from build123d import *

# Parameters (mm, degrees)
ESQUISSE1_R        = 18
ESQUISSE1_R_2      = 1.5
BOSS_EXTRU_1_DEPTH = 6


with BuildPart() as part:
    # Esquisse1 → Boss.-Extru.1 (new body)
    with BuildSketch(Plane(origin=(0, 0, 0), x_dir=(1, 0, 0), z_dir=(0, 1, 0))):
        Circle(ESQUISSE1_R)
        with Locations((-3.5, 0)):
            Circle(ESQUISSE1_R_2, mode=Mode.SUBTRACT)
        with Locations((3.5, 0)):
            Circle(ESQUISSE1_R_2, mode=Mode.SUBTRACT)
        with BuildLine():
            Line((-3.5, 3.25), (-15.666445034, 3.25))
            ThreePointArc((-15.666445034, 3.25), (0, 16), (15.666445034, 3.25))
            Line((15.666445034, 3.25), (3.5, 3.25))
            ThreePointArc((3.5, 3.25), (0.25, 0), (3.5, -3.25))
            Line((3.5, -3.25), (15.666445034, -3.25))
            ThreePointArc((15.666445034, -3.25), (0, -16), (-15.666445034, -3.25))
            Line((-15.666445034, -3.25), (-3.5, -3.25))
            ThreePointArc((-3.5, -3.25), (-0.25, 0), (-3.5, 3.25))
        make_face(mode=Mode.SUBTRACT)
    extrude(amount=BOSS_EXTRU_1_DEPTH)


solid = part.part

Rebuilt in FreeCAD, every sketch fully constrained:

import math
import FreeCAD as App
import Part
import Sketcher

V = App.Vector
Q = App.Units.Quantity

doc = App.newDocument("Part")
body = doc.addObject("PartDesign::Body", "Body")

sketch1 = body.newObject("Sketcher::SketchObject", "Sketch")
sketch1.AttachmentSupport = (doc.getObject("XZ_Plane"), [""])
sketch1.MapMode = "FlatFace"
sketch1.addGeometry(Part.Circle(V(0, 0, 0), V(0, 0, 1), 18), False)
sketch1.addGeometry(Part.Circle(V(-3.5, 0, 0), V(0, 0, 1), 1.5), False)
sketch1.addGeometry(Part.ArcOfCircle(Part.Circle(V(-3.5, 0, 0), V(0, 0, 1), 3.25), math.radians(-90), math.radians(90)), False)
sketch1.addGeometry(Part.LineSegment(V(-3.5, -3.25, 0), V(-15.666445, -3.25, 0)), False)
sketch1.addGeometry(Part.ArcOfCircle(Part.Circle(V(0, 0, 0), V(0, 0, 1), 16), math.radians(-168.28024), math.radians(-11.71976)), False)
sketch1.addGeometry(Part.LineSegment(V(15.666445, -3.25, 0), V(3.5, -3.25, 0)), False)
sketch1.addGeometry(Part.ArcOfCircle(Part.Circle(V(3.5, 0, 0), V(0, 0, 1), 3.25), math.radians(90), math.radians(270)), False)
sketch1.addGeometry(Part.LineSegment(V(3.5, 3.25, 0), V(15.666445, 3.25, 0)), False)
sketch1.addGeometry(Part.ArcOfCircle(Part.Circle(V(0, 0, 0), V(0, 0, 1), 16), math.radians(11.71976), math.radians(168.28024)), False)
sketch1.addGeometry(Part.LineSegment(V(-15.666445, 3.25, 0), V(-3.5, 3.25, 0)), False)
sketch1.addGeometry(Part.Circle(V(3.5, 0, 0), V(0, 0, 1), 1.5), False)
sketch1.addConstraint(Sketcher.Constraint("Tangent", 2, 1, 3, 1))
sketch1.addConstraint(Sketcher.Constraint("Coincident", 3, 2, 4, 1))
sketch1.addConstraint(Sketcher.Constraint("Coincident", 4, 2, 5, 1))
sketch1.addConstraint(Sketcher.Constraint("Tangent", 5, 2, 6, 2))
sketch1.addConstraint(Sketcher.Constraint("Tangent", 6, 1, 7, 1))
sketch1.addConstraint(Sketcher.Constraint("Coincident", 7, 2, 8, 1))
sketch1.addConstraint(Sketcher.Constraint("Coincident", 8, 2, 9, 1))
sketch1.addConstraint(Sketcher.Constraint("Tangent", 9, 2, 2, 2))
sketch1.addConstraint(Sketcher.Constraint("Horizontal", 3))
sketch1.addConstraint(Sketcher.Constraint("Horizontal", 5))
sketch1.addConstraint(Sketcher.Constraint("Horizontal", 7))
sketch1.addConstraint(Sketcher.Constraint("Horizontal", 9))
sketch1.addConstraint(Sketcher.Constraint("Coincident", 0, 3, -1, 1))
sketch1.addConstraint(Sketcher.Constraint("Coincident", 4, 3, -1, 1))
sketch1.addConstraint(Sketcher.Constraint("Coincident", 8, 3, -1, 1))
sketch1.addConstraint(Sketcher.Constraint("Coincident", 2, 3, 1, 3))
sketch1.addConstraint(Sketcher.Constraint("Coincident", 10, 3, 6, 3))
sketch1.addConstraint(Sketcher.Constraint("Equal", 2, 6))
sketch1.addConstraint(Sketcher.Constraint("Equal", 4, 8))
sketch1.addConstraint(Sketcher.Constraint("Equal", 1, 10))
sketch1.addConstraint(Sketcher.Constraint("Symmetric", 1, 3, 6, 3, -1, 1))
sketch1.addConstraint(Sketcher.Constraint("PointOnObject", 1, 3, -1))
sketch1.addConstraint(Sketcher.Constraint("Diameter", 0, Q("36 mm")))
sketch1.addConstraint(Sketcher.Constraint("Diameter", 1, Q("3 mm")))
sketch1.addConstraint(Sketcher.Constraint("Radius", 4, Q("16 mm")))
sketch1.addConstraint(Sketcher.Constraint("Radius", 2, Q("3.25 mm")))
sketch1.addConstraint(Sketcher.Constraint("DistanceX", 1, 3, 6, 3, Q("7 mm")))
pad1 = body.newObject("PartDesign::Pad", "Pad")
pad1.Profile = sketch1
pad1.Length = 6
pad1.Reversed = True

doc.recompute()
